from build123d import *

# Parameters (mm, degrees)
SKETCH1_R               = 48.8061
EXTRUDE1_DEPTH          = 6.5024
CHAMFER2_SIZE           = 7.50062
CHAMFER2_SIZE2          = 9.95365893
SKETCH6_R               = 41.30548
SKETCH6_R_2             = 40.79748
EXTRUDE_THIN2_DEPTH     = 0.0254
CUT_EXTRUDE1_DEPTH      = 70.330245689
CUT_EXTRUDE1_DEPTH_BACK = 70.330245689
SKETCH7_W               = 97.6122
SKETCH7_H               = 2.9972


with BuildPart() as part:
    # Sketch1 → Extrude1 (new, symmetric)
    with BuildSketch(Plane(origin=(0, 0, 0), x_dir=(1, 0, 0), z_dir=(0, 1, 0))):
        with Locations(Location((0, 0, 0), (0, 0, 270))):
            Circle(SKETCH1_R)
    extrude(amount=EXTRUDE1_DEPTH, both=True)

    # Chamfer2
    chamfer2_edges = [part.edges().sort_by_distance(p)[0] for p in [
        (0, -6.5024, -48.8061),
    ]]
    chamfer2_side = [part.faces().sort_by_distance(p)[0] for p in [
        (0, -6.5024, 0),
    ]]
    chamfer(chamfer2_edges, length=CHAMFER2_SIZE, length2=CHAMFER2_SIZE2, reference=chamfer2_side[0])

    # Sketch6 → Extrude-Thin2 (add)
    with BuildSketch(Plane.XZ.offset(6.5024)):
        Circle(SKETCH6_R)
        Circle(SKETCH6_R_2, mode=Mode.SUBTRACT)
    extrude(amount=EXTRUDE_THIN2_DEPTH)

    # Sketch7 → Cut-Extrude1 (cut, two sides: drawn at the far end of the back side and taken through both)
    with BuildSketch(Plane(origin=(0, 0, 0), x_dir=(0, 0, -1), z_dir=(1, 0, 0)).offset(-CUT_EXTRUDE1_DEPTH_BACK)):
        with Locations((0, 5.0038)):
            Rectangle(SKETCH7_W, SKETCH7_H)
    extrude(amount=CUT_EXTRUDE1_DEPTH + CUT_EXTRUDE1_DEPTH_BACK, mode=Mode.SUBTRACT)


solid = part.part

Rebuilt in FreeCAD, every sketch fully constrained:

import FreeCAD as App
import Part
import Sketcher
from FreeCAD import Vector
Q = App.Units.Quantity


def edges_at(feature, points):
    """Names of the edges that pass closest to the given points."""
    edges = feature.Shape.Edges
    near = lambda p: min(range(len(edges)), key=lambda i: edges[i].distToShape(Part.Vertex(*p))[0])
    return sorted({f"Edge{near(p) + 1}" for p in points})

doc = App.newDocument("Part")
body = doc.addObject("PartDesign::Body", "Body")

# Sketch on XZ plane
sketch1 = doc.addObject("Sketcher::SketchObject", "Sketch")
body.addObject(sketch1)
sketch1.AttachmentSupport = (doc.XZ_Plane, [""])
sketch1.MapMode = "FlatFace"
sketch1.addGeometry(Part.Circle(Vector(0, 0, 0), Vector(0, 0, 1), 49), False)
sketch1.addConstraint(Sketcher.Constraint("Coincident", 0, 3, -1, 1))
sketch1.addConstraint(Sketcher.Constraint("Diameter", 0, Q("3.843 in")))
pad1 = doc.addObject("PartDesign::Pad", "Pad")
body.addObject(pad1)
pad1.Profile = sketch1
pad1.Length = Q("0.512 in")
pad1.Midplane = True
doc.recompute()

chamfer = doc.addObject("PartDesign::Chamfer", "Chamfer")
body.addObject(chamfer)
chamfer.Base = (pad1, edges_at(pad1, [(0, -6.502, -48.806)]))
chamfer.ChamferType = "Two distances"
chamfer.Size = Q("0.2953 in")
chamfer.Size2 = 9.953659
chamfer.FlipDirection = True

# Sketch on XZ plane
sketch2 = doc.addObject("Sketcher::SketchObject", "Sketch001")
body.addObject(sketch2)
sketch2.AttachmentSupport = (doc.XZ_Plane, [""])
sketch2.MapMode = "FlatFace"
sketch2.AttachmentOffset = App.Placement(Vector(0, 0, 0.256 * 25.4), App.Rotation())
sketch2.addGeometry(Part.Circle(Vector(0, 0, 0), Vector(0, 0, 1), 41), False)
sketch2.addGeometry(Part.Circle(Vector(0, 0, 0), Vector(0, 0, 1), 41), False)
sketch2.addConstraint(Sketcher.Constraint("Coincident", 0, 3, -1, 1))
sketch2.addConstraint(Sketcher.Constraint("Coincident", 1, 3, -1, 1))
sketch2.addConstraint(Sketcher.Constraint("Diameter", 0, Q("3.2524 in")))
sketch2.addConstraint(Sketcher.Constraint("Diameter", 1, Q("3.2124 in")))
pad2 = doc.addObject("PartDesign::Pad", "Pad001")
body.addObject(pad2)
pad2.Profile = sketch2
pad2.Length = Q("0.001 in")

# Sketch on YZ plane
sketch3 = doc.addObject("Sketcher::SketchObject", "Sketch002")
body.addObject(sketch3)
sketch3.AttachmentSupport = (doc.YZ_Plane, [""])
sketch3.MapMode = "FlatFace"
sketch3.addGeometry(Part.LineSegment(Vector(6.5, 48.8, 0), Vector(3.5, 48.8, 0)), False)
sketch3.addGeometry(Part.LineSegment(Vector(3.5, 48.8, 0), Vector(3.5, -48.8, 0)), False)
sketch3.addGeometry(Part.LineSegment(Vector(3.5, -48.8, 0), Vector(6.5, -48.8, 0)), False)
sketch3.addGeometry(Part.LineSegment(Vector(6.5, -48.8, 0), Vector(6.5, 48.8, 0)), False)
sketch3.addConstraint(Sketcher.Constraint("Coincident", 0, 2, 1, 1))
sketch3.addConstraint(Sketcher.Constraint("Coincident", 1, 2, 2, 1))
sketch3.addConstraint(Sketcher.Constraint("Coincident", 2, 2, 3, 1))
sketch3.addConstraint(Sketcher.Constraint("Coincident", 3, 2, 0, 1))
sketch3.addConstraint(Sketcher.Constraint("Horizontal", 0))
sketch3.addConstraint(Sketcher.Constraint("Vertical", 1))
sketch3.addConstraint(Sketcher.Constraint("Horizontal", 2))
sketch3.addConstraint(Sketcher.Constraint("Vertical", 3))
sketch3.addConstraint(Sketcher.Constraint("DistanceX", 0, 2, 0, 1, Q("0.118 in")))
sketch3.addConstraint(Sketcher.Constraint("DistanceY", 1, 2, 1, 1, Q("3.843 in")))
sketch3.addConstraint(Sketcher.Constraint("DistanceX", -1, 1, 0, 2, Q("0.138 in")))
sketch3.addConstraint(Sketcher.Constraint("DistanceY", -1, 1, 0, 2, Q("1.9215 in")))
pocket1 = doc.addObject("PartDesign::Pocket", "Pocket")
body.addObject(pocket1)
pocket1.Profile = sketch3
pocket1.Type = "ThroughAll"
pocket1.Midplane = True

doc.recompute()
